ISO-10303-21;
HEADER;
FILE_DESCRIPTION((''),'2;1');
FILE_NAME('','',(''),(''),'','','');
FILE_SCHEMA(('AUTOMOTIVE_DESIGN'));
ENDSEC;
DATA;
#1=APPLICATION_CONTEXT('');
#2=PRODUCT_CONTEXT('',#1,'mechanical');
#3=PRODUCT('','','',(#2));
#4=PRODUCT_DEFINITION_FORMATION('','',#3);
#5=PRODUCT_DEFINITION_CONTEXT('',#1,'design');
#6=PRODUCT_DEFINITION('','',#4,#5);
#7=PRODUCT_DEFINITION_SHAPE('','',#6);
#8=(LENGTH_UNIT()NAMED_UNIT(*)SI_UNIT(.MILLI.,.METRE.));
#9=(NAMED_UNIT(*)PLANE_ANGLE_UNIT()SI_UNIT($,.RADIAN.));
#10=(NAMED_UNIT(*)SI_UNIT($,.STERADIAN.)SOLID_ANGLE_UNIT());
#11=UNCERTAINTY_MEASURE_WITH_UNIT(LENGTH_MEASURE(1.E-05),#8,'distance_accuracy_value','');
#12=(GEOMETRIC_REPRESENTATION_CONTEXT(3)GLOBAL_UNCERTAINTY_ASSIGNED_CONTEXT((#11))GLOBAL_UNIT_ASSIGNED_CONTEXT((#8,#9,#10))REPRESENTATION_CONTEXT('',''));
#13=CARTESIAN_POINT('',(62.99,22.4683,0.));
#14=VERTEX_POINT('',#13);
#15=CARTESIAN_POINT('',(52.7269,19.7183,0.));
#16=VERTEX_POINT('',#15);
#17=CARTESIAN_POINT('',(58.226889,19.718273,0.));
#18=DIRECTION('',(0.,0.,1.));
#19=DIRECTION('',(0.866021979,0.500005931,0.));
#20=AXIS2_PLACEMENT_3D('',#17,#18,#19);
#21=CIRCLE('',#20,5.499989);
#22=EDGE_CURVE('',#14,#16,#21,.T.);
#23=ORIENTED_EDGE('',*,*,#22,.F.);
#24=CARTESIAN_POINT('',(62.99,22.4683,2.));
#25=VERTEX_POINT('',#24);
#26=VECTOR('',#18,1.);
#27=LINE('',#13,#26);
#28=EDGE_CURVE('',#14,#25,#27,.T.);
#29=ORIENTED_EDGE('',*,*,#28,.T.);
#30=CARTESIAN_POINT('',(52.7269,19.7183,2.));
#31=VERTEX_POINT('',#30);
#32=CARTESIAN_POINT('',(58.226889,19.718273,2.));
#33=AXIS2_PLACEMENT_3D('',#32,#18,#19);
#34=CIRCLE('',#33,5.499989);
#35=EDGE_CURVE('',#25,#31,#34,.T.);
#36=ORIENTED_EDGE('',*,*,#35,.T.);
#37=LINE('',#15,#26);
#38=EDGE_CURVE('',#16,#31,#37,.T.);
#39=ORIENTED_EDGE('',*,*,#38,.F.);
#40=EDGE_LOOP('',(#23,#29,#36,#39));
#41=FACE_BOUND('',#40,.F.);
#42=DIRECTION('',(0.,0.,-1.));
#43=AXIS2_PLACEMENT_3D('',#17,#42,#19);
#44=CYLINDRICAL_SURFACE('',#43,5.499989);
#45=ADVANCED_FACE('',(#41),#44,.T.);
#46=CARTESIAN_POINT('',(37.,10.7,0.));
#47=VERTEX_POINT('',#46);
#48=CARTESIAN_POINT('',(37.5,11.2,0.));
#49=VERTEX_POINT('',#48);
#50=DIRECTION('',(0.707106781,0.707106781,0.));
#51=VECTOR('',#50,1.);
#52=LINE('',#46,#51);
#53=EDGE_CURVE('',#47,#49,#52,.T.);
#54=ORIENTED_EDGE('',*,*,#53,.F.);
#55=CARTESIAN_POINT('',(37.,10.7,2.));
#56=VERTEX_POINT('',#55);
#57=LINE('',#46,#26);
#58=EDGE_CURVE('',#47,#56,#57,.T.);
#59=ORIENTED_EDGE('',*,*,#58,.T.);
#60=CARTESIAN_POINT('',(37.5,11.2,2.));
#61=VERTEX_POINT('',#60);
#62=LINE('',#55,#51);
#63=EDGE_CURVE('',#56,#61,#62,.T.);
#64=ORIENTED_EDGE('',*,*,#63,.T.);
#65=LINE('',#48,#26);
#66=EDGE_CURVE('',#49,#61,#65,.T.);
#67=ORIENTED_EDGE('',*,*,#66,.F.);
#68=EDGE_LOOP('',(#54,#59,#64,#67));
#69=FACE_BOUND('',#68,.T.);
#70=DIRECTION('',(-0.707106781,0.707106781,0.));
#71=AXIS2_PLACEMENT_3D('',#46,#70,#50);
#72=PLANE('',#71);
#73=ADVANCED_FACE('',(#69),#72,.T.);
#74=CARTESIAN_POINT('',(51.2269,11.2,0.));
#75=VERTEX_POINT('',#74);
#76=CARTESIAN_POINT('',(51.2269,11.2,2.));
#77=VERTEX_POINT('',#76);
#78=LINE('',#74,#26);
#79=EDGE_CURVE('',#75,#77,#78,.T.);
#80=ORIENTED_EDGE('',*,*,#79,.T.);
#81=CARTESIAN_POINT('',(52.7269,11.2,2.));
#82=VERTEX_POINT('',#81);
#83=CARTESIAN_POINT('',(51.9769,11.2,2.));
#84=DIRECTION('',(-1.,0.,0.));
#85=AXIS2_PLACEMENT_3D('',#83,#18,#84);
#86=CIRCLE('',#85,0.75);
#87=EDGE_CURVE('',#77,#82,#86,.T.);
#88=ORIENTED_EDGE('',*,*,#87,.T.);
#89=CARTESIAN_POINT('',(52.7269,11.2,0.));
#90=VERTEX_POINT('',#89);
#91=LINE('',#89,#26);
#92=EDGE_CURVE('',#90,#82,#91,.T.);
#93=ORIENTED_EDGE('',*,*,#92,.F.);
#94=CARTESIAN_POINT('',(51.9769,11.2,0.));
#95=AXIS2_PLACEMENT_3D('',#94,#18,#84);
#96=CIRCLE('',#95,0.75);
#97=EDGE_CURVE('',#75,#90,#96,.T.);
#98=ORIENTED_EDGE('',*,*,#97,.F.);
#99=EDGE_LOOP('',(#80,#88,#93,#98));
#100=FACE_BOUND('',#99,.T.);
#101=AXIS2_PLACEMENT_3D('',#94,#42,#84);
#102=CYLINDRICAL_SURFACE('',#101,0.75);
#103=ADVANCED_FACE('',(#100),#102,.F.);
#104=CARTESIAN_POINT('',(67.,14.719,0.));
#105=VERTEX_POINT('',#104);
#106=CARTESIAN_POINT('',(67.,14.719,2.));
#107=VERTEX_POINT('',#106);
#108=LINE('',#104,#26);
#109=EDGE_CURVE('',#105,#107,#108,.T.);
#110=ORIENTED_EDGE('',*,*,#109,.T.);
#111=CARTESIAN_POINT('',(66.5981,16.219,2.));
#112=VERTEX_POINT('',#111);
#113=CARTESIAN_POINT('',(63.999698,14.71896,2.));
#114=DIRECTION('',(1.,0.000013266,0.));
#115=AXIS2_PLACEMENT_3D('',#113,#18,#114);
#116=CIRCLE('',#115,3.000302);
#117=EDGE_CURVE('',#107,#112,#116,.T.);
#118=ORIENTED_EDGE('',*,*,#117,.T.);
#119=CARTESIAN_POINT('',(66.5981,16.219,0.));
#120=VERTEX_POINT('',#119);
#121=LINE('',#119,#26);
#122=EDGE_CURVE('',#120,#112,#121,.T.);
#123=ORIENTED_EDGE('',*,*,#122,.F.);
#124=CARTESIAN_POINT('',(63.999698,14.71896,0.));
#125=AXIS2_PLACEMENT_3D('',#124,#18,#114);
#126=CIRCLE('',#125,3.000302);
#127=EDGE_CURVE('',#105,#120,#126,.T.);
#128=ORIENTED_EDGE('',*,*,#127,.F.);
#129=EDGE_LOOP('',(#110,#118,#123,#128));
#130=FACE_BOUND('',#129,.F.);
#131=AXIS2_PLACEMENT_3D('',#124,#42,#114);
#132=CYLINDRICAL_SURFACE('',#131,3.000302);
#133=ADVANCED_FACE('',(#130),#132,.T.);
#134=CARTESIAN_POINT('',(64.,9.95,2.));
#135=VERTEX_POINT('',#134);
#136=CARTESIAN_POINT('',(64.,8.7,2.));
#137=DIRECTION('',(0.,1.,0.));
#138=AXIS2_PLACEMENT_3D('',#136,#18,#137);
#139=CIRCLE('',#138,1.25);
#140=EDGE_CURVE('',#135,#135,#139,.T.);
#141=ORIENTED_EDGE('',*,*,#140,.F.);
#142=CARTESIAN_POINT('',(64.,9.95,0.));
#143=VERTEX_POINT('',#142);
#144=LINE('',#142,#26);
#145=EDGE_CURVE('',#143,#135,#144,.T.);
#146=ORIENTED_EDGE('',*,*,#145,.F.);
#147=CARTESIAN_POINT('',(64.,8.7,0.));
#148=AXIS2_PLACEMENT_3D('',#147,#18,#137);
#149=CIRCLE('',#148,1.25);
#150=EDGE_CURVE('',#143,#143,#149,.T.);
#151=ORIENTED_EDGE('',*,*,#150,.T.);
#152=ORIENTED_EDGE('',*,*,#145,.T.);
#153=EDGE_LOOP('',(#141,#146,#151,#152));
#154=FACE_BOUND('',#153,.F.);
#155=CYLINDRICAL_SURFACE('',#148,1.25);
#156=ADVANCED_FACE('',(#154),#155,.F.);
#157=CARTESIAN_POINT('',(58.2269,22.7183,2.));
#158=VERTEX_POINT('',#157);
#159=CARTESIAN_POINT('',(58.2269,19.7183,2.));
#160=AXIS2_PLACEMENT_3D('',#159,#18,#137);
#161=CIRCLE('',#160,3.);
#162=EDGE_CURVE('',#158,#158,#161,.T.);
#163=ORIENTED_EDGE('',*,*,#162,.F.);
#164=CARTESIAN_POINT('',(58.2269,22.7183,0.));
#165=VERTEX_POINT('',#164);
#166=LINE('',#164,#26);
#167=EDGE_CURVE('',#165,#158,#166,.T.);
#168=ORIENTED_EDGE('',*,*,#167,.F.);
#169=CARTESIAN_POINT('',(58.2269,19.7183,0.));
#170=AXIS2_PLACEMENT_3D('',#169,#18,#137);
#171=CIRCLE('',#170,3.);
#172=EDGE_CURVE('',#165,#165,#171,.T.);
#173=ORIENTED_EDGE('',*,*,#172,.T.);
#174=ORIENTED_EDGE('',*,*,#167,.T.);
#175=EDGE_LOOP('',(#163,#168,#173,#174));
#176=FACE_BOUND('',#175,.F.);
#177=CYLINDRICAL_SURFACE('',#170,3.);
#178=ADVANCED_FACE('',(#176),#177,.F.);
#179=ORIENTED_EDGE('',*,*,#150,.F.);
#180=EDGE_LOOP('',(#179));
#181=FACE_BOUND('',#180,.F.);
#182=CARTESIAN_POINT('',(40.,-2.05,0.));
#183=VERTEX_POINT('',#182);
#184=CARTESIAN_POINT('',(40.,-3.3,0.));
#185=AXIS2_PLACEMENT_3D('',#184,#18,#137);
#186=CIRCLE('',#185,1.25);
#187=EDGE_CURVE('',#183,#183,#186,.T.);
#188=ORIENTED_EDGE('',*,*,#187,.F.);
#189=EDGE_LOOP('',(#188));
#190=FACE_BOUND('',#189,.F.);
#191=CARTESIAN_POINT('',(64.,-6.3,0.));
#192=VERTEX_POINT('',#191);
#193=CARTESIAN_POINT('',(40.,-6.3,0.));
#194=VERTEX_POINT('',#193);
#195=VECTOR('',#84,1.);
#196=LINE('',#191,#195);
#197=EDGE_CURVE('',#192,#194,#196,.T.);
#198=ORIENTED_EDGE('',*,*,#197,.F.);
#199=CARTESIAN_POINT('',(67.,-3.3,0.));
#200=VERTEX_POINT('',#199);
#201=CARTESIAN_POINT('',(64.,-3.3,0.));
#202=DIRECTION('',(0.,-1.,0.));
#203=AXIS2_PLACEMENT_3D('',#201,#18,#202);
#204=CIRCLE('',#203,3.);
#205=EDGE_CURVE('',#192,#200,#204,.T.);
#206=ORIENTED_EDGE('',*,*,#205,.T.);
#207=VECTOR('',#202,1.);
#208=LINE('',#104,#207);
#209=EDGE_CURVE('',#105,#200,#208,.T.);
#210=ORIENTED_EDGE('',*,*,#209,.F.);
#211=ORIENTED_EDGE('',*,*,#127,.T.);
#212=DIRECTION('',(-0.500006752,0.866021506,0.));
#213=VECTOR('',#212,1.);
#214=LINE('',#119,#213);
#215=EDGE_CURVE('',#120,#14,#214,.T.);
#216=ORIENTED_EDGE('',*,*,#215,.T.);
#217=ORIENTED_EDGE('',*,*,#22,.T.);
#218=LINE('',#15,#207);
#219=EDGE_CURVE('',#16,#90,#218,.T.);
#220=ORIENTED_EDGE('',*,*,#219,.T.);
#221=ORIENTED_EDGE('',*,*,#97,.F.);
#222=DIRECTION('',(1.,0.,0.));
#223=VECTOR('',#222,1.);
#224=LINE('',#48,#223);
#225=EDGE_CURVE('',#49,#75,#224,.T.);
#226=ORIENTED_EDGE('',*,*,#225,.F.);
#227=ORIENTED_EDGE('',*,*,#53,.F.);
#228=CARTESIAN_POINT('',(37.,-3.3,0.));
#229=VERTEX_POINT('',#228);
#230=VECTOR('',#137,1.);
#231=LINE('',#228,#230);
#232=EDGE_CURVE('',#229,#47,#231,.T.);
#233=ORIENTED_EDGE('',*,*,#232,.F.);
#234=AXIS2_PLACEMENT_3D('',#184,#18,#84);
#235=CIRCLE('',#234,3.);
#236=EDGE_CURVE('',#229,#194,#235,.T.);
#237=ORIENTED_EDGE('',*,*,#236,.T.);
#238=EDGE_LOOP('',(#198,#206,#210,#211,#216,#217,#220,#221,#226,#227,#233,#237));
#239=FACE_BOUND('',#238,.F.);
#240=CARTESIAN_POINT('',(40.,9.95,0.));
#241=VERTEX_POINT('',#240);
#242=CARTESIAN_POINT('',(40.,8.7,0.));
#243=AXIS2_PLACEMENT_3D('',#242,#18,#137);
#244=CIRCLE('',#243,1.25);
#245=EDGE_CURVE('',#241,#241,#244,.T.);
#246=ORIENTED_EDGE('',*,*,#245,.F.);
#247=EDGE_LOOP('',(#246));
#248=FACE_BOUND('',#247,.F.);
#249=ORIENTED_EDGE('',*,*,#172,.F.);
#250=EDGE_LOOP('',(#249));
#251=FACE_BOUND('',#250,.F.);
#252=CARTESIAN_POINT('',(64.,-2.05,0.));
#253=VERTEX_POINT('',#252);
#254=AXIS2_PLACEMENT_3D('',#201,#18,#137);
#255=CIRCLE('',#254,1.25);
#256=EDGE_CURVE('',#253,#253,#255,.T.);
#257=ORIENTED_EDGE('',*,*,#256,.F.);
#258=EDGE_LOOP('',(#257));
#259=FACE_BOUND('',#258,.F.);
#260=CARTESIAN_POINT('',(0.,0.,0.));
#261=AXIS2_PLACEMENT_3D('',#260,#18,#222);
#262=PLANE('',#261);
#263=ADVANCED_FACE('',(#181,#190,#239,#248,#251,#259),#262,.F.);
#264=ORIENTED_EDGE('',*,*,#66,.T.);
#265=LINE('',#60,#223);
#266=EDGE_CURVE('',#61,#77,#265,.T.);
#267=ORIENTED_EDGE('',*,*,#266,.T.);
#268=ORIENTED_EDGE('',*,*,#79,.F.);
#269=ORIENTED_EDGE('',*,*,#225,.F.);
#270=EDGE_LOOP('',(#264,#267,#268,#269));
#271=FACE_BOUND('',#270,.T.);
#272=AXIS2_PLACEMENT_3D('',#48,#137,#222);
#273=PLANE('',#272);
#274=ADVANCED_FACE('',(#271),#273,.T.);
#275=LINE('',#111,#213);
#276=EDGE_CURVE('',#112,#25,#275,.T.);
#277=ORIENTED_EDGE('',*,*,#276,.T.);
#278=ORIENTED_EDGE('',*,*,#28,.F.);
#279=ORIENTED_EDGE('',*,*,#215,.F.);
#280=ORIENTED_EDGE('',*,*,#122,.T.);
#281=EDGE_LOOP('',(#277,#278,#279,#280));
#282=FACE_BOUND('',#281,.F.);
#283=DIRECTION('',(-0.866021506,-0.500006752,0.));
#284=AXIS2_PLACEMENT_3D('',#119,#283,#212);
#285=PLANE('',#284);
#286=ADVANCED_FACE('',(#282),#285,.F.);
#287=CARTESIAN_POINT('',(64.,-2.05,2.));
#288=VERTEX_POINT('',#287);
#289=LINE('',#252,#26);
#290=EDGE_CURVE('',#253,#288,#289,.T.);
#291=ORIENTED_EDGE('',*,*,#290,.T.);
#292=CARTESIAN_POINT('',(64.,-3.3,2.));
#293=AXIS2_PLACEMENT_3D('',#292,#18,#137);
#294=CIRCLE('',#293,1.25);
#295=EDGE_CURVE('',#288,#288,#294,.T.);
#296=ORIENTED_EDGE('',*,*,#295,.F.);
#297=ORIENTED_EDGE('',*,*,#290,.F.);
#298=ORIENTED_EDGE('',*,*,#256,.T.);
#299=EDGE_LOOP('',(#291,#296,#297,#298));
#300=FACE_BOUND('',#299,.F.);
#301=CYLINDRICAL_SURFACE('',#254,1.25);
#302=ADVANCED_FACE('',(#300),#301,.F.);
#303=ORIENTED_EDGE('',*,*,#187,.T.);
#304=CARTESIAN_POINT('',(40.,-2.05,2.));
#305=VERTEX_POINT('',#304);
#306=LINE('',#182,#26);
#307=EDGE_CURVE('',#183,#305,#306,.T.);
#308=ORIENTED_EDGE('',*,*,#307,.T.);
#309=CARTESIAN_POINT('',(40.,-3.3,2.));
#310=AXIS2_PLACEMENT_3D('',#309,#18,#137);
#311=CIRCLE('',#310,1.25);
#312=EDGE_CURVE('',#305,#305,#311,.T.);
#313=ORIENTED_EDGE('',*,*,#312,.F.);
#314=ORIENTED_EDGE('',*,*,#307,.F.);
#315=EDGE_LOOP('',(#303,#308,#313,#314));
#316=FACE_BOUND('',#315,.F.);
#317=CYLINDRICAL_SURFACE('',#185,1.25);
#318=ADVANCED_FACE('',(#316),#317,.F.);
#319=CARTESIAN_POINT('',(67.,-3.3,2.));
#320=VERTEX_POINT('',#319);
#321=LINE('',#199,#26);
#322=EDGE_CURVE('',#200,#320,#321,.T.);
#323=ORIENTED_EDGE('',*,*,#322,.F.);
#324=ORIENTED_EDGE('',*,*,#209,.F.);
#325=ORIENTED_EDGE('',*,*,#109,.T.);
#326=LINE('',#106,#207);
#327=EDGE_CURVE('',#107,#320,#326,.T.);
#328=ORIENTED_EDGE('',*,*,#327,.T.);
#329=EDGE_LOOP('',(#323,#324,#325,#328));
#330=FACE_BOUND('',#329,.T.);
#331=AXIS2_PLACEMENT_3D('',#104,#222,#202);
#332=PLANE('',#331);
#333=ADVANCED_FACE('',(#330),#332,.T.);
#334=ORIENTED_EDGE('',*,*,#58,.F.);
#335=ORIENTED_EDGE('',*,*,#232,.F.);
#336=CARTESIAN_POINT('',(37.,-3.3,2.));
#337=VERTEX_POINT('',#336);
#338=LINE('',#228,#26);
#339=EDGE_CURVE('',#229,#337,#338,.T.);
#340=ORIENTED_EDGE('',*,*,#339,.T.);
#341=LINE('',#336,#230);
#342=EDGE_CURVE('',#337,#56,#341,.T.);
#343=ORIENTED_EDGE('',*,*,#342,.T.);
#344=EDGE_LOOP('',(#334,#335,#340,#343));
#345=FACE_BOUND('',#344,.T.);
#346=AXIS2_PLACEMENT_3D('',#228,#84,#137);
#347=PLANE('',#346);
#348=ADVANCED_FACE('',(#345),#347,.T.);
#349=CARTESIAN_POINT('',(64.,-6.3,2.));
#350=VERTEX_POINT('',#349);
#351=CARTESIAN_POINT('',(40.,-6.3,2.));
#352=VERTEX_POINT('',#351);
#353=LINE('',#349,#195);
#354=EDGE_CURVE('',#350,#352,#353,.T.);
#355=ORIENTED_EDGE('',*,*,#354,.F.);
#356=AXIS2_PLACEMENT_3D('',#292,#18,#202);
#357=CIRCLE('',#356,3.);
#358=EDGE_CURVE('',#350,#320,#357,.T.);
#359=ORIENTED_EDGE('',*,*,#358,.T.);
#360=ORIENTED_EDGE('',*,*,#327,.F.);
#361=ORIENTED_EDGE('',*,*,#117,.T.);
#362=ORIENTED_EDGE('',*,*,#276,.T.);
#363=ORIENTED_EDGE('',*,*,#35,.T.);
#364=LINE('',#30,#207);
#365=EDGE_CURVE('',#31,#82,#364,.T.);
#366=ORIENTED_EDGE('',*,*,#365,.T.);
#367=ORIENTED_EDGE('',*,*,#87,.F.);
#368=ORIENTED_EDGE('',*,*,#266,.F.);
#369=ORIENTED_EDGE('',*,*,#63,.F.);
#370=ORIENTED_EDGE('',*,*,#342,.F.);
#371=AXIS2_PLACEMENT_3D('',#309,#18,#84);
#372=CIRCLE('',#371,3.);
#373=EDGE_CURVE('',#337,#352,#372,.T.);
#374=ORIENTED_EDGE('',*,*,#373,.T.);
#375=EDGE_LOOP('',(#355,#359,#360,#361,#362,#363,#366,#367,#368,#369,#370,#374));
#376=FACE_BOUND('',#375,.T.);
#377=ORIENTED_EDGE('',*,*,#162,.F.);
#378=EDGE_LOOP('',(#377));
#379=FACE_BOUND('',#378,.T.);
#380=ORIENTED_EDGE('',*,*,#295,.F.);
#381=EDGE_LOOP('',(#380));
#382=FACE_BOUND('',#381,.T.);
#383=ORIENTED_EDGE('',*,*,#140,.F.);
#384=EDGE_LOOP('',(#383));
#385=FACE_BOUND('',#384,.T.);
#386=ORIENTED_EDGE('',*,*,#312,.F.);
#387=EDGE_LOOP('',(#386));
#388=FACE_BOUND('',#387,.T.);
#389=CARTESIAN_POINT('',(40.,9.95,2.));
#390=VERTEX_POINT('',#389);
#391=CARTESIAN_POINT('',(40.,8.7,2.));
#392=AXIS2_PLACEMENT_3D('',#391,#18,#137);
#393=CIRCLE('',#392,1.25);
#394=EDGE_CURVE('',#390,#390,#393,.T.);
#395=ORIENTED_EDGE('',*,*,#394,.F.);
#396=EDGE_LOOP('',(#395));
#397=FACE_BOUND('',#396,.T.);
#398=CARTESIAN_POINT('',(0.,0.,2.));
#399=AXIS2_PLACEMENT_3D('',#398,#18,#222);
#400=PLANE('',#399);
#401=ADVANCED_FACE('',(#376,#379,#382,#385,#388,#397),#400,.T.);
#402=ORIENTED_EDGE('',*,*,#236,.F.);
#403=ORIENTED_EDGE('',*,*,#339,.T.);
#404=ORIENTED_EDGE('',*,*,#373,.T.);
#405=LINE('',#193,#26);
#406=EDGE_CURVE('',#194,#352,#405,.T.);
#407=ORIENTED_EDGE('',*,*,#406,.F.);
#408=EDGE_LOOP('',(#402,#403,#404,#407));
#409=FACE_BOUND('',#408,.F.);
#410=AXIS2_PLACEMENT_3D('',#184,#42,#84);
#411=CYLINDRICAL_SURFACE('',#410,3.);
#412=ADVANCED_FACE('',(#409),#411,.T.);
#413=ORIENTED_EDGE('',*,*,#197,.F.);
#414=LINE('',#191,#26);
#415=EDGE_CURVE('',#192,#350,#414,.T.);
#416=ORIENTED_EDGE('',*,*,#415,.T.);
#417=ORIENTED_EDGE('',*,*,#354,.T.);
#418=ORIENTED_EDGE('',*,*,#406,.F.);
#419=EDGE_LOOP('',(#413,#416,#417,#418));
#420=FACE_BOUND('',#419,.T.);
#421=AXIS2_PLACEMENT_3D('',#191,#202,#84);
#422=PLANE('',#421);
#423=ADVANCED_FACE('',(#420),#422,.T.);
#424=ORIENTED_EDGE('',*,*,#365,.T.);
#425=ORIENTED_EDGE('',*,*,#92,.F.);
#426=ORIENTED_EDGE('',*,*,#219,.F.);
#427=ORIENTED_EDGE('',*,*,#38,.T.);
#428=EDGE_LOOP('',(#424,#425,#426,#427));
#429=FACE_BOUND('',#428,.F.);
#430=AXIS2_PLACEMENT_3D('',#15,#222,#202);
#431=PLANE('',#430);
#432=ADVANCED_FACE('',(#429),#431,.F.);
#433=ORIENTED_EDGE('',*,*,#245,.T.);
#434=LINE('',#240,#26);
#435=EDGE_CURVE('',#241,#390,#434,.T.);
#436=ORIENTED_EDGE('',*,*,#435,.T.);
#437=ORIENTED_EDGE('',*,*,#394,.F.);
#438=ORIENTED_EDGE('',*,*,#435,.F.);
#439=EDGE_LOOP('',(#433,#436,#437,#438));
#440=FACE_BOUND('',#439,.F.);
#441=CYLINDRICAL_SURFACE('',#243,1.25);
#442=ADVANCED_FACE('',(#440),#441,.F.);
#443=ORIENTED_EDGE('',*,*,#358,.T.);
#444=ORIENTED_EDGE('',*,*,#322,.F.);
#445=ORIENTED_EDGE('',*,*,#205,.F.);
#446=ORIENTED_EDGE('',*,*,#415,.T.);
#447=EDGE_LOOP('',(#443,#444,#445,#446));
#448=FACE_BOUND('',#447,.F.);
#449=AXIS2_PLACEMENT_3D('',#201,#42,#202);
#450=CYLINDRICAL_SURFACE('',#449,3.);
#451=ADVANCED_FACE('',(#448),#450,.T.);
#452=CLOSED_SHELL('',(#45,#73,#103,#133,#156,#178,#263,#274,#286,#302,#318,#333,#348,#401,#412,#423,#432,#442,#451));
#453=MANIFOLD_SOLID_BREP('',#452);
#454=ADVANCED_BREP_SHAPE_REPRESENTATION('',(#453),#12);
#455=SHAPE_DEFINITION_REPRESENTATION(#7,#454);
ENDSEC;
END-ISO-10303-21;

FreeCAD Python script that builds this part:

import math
import FreeCAD as App
import Part
import Sketcher

V = App.Vector
Q = App.Units.Quantity

doc = App.newDocument("Part")
body = doc.addObject("PartDesign::Body", "Body")

sketch1 = body.newObject("Sketcher::SketchObject", "Sketch")
sketch1.AttachmentSupport = (doc.getObject("XY_Plane"), [""])
sketch1.MapMode = "FlatFace"
sketch1.addGeometry([
    Part.LineSegment(V(66.6, 16.2, 0), V(63, 22.5, 0)),
    Part.ArcOfCircle(Part.Circle(V(58.2, 19.7, 0), V(0, 0, 1), 5.5), math.radians(30), math.radians(180)),
    Part.LineSegment(V(52.7, 19.7, 0), V(52.7, 11.2, 0)),
    Part.ArcOfCircle(Part.Circle(V(52, 11.2, 0), V(0, 0, 1), 0.8), math.radians(180), math.radians(360)),
    Part.LineSegment(V(51.2, 11.2, 0), V(37.5, 11.2, 0)),
    Part.LineSegment(V(37.5, 11.2, 0), V(37, 10.7, 0)),
    Part.LineSegment(V(37, 10.7, 0), V(37, -3.3, 0)),
    Part.ArcOfCircle(Part.Circle(V(40, -3.3, 0), V(0, 0, 1), 3), math.radians(180), math.radians(270)),
    Part.LineSegment(V(40, -6.3, 0), V(64, -6.3, 0)),
    Part.ArcOfCircle(Part.Circle(V(64, -3.3, 0), V(0, 0, 1), 3), math.radians(-90), math.radians(0)),
    Part.LineSegment(V(67, -3.3, 0), V(67, 14.7, 0)),
    Part.ArcOfCircle(Part.Circle(V(64, 14.7, 0), V(0, 0, 1), 3), math.radians(0), math.radians(30)),
], False)
sketch1.addConstraint([
    Sketcher.Constraint("Tangent", 0, 2, 1, 1),
    Sketcher.Constraint("Tangent", 1, 2, 2, 1),
    Sketcher.Constraint("Tangent", 2, 2, 3, 2),
    Sketcher.Constraint("Coincident", 3, 1, 4, 1),
    Sketcher.Constraint("Coincident", 4, 2, 5, 1),
    Sketcher.Constraint("Coincident", 5, 2, 6, 1),
    Sketcher.Constraint("Tangent", 6, 2, 7, 1),
    Sketcher.Constraint("Tangent", 7, 2, 8, 1),
    Sketcher.Constraint("Tangent", 8, 2, 9, 1),
    Sketcher.Constraint("Tangent", 9, 2, 10, 1),
    Sketcher.Constraint("Tangent", 10, 2, 11, 1),
    Sketcher.Constraint("Tangent", 11, 2, 0, 1),
    Sketcher.Constraint("Vertical", 2),
    Sketcher.Constraint("Horizontal", 4),
    Sketcher.Constraint("Vertical", 6),
    Sketcher.Constraint("Horizontal", 8),
    Sketcher.Constraint("Vertical", 10),
    Sketcher.Constraint("Equal", 7, 9),
    Sketcher.Constraint("Equal", 9, 11),
    Sketcher.Constraint("Horizontal", 2, 2, 3, 1),
    Sketcher.Constraint("Radius", 7, 3.0),
    Sketcher.Constraint("Radius", 1, 5.5),
    Sketcher.Constraint("DistanceX", 8, 1, 8, 2, 24.0),
    Sketcher.Constraint("Radius", 3, 0.75),
    Sketcher.Constraint("DistanceX", 5, 2, 4, 2, 0.5),
    Sketcher.Constraint("DistanceY", 5, 2, 4, 2, 0.5),
    Sketcher.Constraint("DistanceY", 6, 2, 6, 1, 14.0),
    Sketcher.Constraint("Angle", 0, Q("120.0004 deg")),
    Sketcher.Constraint("DistanceX", -1, 1, 7, 3, 40.0),
    Sketcher.Constraint("DistanceY", -1, 1, 3, 3, 11.2),
    Sketcher.Constraint("DistanceX", 4, 2, 4, 1, 13.727),
    Sketcher.Constraint("DistanceY", 10, 1, 10, 2, 18.019),
])
pad1 = body.newObject("PartDesign::Pad", "Pad")
pad1.Profile = sketch1
pad1.Length = 2

sketch2 = body.newObject("Sketcher::SketchObject", "Sketch001")
sketch2.AttachmentSupport = (doc.getObject("XY_Plane"), [""])
sketch2.MapMode = "FlatFace"
sketch2.addGeometry(Part.Circle(V(58.2, 19.7, 0), V(0, 0, 1), 3), False)
sketch2.addConstraint([
    Sketcher.Constraint("Diameter", 0, 6.0),
    Sketcher.Constraint("DistanceX", -1, 1, 0, 3, 58.227),
    Sketcher.Constraint("DistanceY", -1, 1, 0, 3, 19.7183),
])
doc.recompute()
hole = body.newObject("PartDesign::Hole", "Hole")
hole.Profile = sketch2
hole.ThreadType = "None"
hole.Diameter = 6
hole.DepthType = "ThroughAll"
hole.Reversed = True

sketch3 = body.newObject("Sketcher::SketchObject", "Sketch002")
sketch3.AttachmentSupport = (doc.getObject("XY_Plane"), [""])
sketch3.MapMode = "FlatFace"
sketch3.addGeometry([
    Part.Circle(V(64, 8.7, 0), V(0, 0, 1), 1.2),
    Part.Circle(V(40, 8.7, 0), V(0, 0, 1), 1.2),
    Part.Circle(V(40, -3.3, 0), V(0, 0, 1), 1.2),
    Part.Circle(V(64, -3.3, 0), V(0, 0, 1), 1.2),
], False)
sketch3.addConstraint([
    Sketcher.Constraint("Equal", 0, 1),
    Sketcher.Constraint("Equal", 1, 2),
    Sketcher.Constraint("Equal", 2, 3),
    Sketcher.Constraint("Horizontal", 0, 3, 1, 3),
    Sketcher.Constraint("Horizontal", 2, 3, 3, 3),
    Sketcher.Constraint("Vertical", 1, 3, 2, 3),
    Sketcher.Constraint("Vertical", 0, 3, 3, 3),
    Sketcher.Constraint("Diameter", 0, 2.5),
    Sketcher.Constraint("DistanceX", -1, 1, 0, 3, 64.0),
    Sketcher.Constraint("DistanceX", -1, 1, 1, 3, 40.0),
    Sketcher.Constraint("DistanceY", 2, 3, 1, 3, 12.0),
    Sketcher.Constraint("DistanceY", -1, 1, 0, 3, 8.7),
])
doc.recompute()
hole2 = body.newObject("PartDesign::Hole", "Hole001")
hole2.Profile = sketch3
hole2.ThreadType = "None"
hole2.Diameter = 2.5
hole2.DepthType = "ThroughAll"
hole2.Reversed = True

doc.recompute()
